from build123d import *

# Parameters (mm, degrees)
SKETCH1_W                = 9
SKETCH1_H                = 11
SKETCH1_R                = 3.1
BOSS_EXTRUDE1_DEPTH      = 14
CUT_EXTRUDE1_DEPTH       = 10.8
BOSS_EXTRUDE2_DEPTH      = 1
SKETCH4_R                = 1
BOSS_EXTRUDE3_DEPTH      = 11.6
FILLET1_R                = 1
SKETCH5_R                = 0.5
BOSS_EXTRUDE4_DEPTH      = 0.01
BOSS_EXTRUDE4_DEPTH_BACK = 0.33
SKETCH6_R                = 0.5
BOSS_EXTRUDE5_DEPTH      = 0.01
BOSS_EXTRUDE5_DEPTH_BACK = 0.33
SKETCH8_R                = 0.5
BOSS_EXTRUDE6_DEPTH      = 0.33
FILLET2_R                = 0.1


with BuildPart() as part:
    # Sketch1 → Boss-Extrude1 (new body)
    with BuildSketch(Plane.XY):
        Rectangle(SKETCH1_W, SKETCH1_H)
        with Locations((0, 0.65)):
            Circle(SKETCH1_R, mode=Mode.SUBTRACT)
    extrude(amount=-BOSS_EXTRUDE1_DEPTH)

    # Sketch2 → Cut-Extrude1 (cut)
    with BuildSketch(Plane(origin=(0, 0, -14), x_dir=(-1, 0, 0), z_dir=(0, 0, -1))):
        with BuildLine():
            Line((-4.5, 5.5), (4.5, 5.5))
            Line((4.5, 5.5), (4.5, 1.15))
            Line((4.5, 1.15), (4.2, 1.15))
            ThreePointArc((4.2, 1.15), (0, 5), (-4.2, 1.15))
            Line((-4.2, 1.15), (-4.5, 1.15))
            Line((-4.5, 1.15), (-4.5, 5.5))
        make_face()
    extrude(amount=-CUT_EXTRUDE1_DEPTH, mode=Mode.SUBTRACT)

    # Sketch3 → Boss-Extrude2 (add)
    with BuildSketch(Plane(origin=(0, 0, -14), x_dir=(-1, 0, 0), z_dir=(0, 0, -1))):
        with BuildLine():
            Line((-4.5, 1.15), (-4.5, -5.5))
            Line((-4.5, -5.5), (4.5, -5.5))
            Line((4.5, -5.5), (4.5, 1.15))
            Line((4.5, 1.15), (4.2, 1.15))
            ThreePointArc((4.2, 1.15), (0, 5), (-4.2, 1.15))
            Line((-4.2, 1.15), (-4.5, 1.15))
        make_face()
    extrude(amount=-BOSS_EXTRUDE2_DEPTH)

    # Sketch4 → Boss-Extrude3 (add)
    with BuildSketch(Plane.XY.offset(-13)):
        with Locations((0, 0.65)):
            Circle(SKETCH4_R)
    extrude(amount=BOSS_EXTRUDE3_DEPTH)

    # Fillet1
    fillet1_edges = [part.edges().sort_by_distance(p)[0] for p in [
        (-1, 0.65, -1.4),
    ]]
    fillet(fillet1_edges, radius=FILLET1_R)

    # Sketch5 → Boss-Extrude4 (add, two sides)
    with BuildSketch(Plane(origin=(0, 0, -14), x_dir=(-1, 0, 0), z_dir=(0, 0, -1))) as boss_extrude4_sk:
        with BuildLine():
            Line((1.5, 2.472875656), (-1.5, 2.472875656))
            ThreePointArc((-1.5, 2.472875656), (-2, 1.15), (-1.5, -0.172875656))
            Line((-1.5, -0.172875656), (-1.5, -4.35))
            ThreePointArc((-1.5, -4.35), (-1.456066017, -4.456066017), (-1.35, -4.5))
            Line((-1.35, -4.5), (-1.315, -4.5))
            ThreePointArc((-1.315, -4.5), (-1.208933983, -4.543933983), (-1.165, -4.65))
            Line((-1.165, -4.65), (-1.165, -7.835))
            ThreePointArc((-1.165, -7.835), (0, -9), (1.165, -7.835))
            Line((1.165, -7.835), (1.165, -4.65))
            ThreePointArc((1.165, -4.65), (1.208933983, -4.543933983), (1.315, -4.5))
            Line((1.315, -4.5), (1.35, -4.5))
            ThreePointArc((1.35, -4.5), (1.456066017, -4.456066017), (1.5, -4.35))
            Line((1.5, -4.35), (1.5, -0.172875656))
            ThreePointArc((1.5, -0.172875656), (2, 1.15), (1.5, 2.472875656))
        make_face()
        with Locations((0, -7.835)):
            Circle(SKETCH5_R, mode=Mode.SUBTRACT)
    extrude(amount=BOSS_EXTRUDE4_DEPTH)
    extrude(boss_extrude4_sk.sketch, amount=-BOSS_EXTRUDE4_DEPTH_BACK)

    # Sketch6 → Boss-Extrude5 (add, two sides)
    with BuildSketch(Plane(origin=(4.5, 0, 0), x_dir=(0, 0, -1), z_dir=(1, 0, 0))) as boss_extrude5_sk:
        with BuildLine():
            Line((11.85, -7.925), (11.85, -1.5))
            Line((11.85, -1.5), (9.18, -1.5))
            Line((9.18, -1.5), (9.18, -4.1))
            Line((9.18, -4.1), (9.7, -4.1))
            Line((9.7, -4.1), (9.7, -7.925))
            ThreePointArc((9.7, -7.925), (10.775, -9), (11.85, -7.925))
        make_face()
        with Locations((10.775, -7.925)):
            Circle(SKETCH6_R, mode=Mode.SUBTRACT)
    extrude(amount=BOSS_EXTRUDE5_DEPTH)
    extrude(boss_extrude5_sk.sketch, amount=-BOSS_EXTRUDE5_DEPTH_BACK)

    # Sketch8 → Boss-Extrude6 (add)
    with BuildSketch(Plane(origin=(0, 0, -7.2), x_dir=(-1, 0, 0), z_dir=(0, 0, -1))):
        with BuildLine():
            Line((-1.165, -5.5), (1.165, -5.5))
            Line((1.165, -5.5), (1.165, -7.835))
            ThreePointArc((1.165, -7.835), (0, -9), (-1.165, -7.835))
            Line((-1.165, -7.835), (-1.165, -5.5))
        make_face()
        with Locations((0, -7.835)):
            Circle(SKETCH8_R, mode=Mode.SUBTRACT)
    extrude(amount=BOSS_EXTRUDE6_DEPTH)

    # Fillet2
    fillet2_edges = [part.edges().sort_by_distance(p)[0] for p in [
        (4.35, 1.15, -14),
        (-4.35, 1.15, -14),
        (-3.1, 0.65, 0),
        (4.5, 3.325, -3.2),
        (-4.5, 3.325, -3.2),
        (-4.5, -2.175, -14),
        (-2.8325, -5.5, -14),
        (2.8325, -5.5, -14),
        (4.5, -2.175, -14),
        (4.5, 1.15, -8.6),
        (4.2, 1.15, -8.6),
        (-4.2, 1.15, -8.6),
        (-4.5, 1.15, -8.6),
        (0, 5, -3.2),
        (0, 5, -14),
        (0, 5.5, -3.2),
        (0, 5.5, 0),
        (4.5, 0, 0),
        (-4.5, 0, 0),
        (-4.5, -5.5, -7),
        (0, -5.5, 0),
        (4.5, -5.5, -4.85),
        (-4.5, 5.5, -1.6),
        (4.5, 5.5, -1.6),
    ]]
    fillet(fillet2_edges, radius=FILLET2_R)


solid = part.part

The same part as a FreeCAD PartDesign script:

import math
import FreeCAD as App
import Part
import Sketcher
from FreeCAD import Vector


def edges_at(feature, points):
    """Names of the edges that pass closest to the given points."""
    edges = feature.Shape.Edges
    near = lambda p: min(range(len(edges)), key=lambda i: edges[i].distToShape(Part.Vertex(*p))[0])
    return sorted({f"Edge{near(p) + 1}" for p in points})

doc = App.newDocument("Part")
body = doc.addObject("PartDesign::Body", "Body")

# Sketch on XY plane
sketch1 = body.newObject("Sketcher::SketchObject", "Sketch")
sketch1.AttachmentSupport = (doc.getObject("XY_Plane"), [""])
sketch1.MapMode = "FlatFace"
sketch1.addGeometry([
    Part.LineSegment(Vector(-4.5, 5.5, 0), Vector(-4.5, -5.5, 0)),  # 0
    Part.LineSegment(Vector(-4.5, -5.5, 0), Vector(4.5, -5.5, 0)),  # 1
    Part.LineSegment(Vector(4.5, -5.5, 0), Vector(4.5, 5.5, 0)),  # 2
    Part.LineSegment(Vector(4.5, 5.5, 0), Vector(-4.5, 5.5, 0)),  # 3
    Part.Circle(Vector(0, 0.7, 0), Vector(0, 0, 1), 3.1),  # 4
], False)
sketch1.addConstraint([
    Sketcher.Constraint("Coincident", 0, 2, 1, 1),
    Sketcher.Constraint("Coincident", 1, 2, 2, 1),
    Sketcher.Constraint("Coincident", 2, 2, 3, 1),
    Sketcher.Constraint("Coincident", 3, 2, 0, 1),
    Sketcher.Constraint("Vertical", 0),
    Sketcher.Constraint("Horizontal", 1),
    Sketcher.Constraint("Vertical", 2),
    Sketcher.Constraint("Horizontal", 3),
    Sketcher.Constraint("Symmetric", 0, 2, 2, 2, -1, 1),
    Sketcher.Constraint("PointOnObject", 4, 3, -2),
    Sketcher.Constraint("Diameter", 4, 6.2),
    Sketcher.Constraint("DistanceX", 1, 1, 1, 2, 9.0),
    Sketcher.Constraint("DistanceY", 0, 2, 0, 1, 11.0),
    Sketcher.Constraint("DistanceY", -1, 1, 4, 3, 0.65),
])
pad1 = body.newObject("PartDesign::Pad", "Pad")
pad1.Profile = sketch1
pad1.Length = 14
pad1.Reversed = True

# Sketch on XY plane
sketch2 = body.newObject("Sketcher::SketchObject", "Sketch001")
sketch2.AttachmentSupport = (doc.getObject("XY_Plane"), [""])
sketch2.MapMode = "FlatFace"
sketch2.AttachmentOffset = App.Placement(Vector(0, 0, -14), App.Rotation())
sketch2.addGeometry([
    Part.LineSegment(Vector(-4.5, 5.5, 0), Vector(4.5, 5.5, 0)),  # 0
    Part.LineSegment(Vector(4.5, 5.5, 0), Vector(4.5, 1.15, 0)),  # 1
    Part.LineSegment(Vector(4.5, 1.15, 0), Vector(4.2, 1.15, 0)),  # 2
    Part.ArcOfCircle(Part.Circle(Vector(0, 0.78, 0), Vector(0, 0, 1), 4.22), math.radians(5), math.radians(175)),  # 3
    Part.LineSegment(Vector(-4.2, 1.15, 0), Vector(-4.5, 1.15, 0)),  # 4
    Part.LineSegment(Vector(-4.5, 1.15, 0), Vector(-4.5, 5.5, 0)),  # 5
], False)
sketch2.addConstraint([
    Sketcher.Constraint("Coincident", 0, 2, 1, 1),
    Sketcher.Constraint("Coincident", 1, 2, 2, 1),
    Sketcher.Constraint("Coincident", 2, 2, 3, 1),
    Sketcher.Constraint("Coincident", 3, 2, 4, 1),
    Sketcher.Constraint("Coincident", 4, 2, 5, 1),
    Sketcher.Constraint("Coincident", 5, 2, 0, 1),
    Sketcher.Constraint("Horizontal", 0),
    Sketcher.Constraint("Vertical", 1),
    Sketcher.Constraint("Horizontal", 2),
    Sketcher.Constraint("Horizontal", 4),
    Sketcher.Constraint("Vertical", 5),
    Sketcher.Constraint("Symmetric", 2, 2, 3, 2, -2),
    Sketcher.Constraint("Equal", 2, 4),
    Sketcher.Constraint("DistanceX", 0, 1, 0, 2, 9.0),
    Sketcher.Constraint("DistanceX", 2, 2, 2, 1, 0.3),
    Sketcher.Constraint("DistanceY", 1, 2, 1, 1, 4.35),
    Sketcher.Constraint("DistanceY", -1, 1, 0, 2, 5.5),
    Sketcher.Constraint("Radius", 3, 4.215909),
])
pocket1 = body.newObject("PartDesign::Pocket", "Pocket")
pocket1.Profile = sketch2
pocket1.Length = 10.8
pocket1.Reversed = True

# Sketch on XY plane
sketch3 = body.newObject("Sketcher::SketchObject", "Sketch002")
sketch3.AttachmentSupport = (doc.getObject("XY_Plane"), [""])
sketch3.MapMode = "FlatFace"
sketch3.AttachmentOffset = App.Placement(Vector(0, 0, -14), App.Rotation())
sketch3.addGeometry([
    Part.LineSegment(Vector(4.5, 1.15, 0), Vector(4.5, -5.5, 0)),  # 0
    Part.LineSegment(Vector(4.5, -5.5, 0), Vector(-4.5, -5.5, 0)),  # 1
    Part.LineSegment(Vector(-4.5, -5.5, 0), Vector(-4.5, 1.15, 0)),  # 2
    Part.LineSegment(Vector(-4.5, 1.15, 0), Vector(-4.2, 1.15, 0)),  # 3
    Part.ArcOfCircle(Part.Circle(Vector(0, 0.78, 0), Vector(0, 0, 1), 4.22), math.radians(5), math.radians(175)),  # 4
    Part.LineSegment(Vector(4.2, 1.15, 0), Vector(4.5, 1.15, 0)),  # 5
], False)
sketch3.addConstraint([
    Sketcher.Constraint("Coincident", 0, 2, 1, 1),
    Sketcher.Constraint("Coincident", 1, 2, 2, 1),
    Sketcher.Constraint("Coincident", 2, 2, 3, 1),
    Sketcher.Constraint("Coincident", 3, 2, 4, 2),
    Sketcher.Constraint("Coincident", 4, 1, 5, 1),
    Sketcher.Constraint("Coincident", 5, 2, 0, 1),
    Sketcher.Constraint("Vertical", 0),
    Sketcher.Constraint("Horizontal", 1),
    Sketcher.Constraint("Vertical", 2),
    Sketcher.Constraint("Horizontal", 3),
    Sketcher.Constraint("Horizontal", 5),
    Sketcher.Constraint("Symmetric", 3, 2, 4, 1, -2),
    Sketcher.Constraint("Equal", 3, 5),
    Sketcher.Constraint("DistanceX", 1, 2, 1, 1, 9.0),
    Sketcher.Constraint("DistanceX", 3, 1, 3, 2, 0.3),
    Sketcher.Constraint("DistanceY", 0, 2, 0, 1, 6.65),
    Sketcher.Constraint("DistanceY", 0, 2, -1, 1, 5.5),
    Sketcher.Constraint("Radius", 4, 4.215909),
])
pad2 = body.newObject("PartDesign::Pad", "Pad001")
pad2.Profile = sketch3
pad2.Length = 1

# Sketch on XY plane
sketch4 = body.newObject("Sketcher::SketchObject", "Sketch003")
sketch4.AttachmentSupport = (doc.getObject("XY_Plane"), [""])
sketch4.MapMode = "FlatFace"
sketch4.AttachmentOffset = App.Placement(Vector(0, 0, -13), App.Rotation())
sketch4.addGeometry(Part.Circle(Vector(0, 0.7, 0), Vector(0, 0, 1), 1), False)
sketch4.addConstraint([
    Sketcher.Constraint("PointOnObject", 0, 3, -2),
    Sketcher.Constraint("Diameter", 0, 2.0),
    Sketcher.Constraint("DistanceY", -1, 1, 0, 3, 0.65),
])
pad3 = body.newObject("PartDesign::Pad", "Pad002")
pad3.Profile = sketch4
pad3.Length = 11.6
doc.recompute()

fillet = body.newObject("PartDesign::Fillet", "Fillet")
fillet.Base = (pad3, edges_at(pad3, [(-1, 0.65, -1.4)]))
fillet.Radius = 1

# Sketch on XY plane
sketch5 = body.newObject("Sketcher::SketchObject", "Sketch004")
sketch5.AttachmentSupport = (doc.getObject("XY_Plane"), [""])
sketch5.MapMode = "FlatFace"
sketch5.AttachmentOffset = App.Placement(Vector(0, 0, -14), App.Rotation())
sketch5.addGeometry([
    Part.LineSegment(Vector(-1.5, 2.473, 0), Vector(1.5, 2.473, 0)),  # 0
    Part.ArcOfCircle(Part.Circle(Vector(0, 1.15, 0), Vector(0, 0, 1), 2), math.radians(-41), math.radians(41)),  # 1
    Part.LineSegment(Vector(1.5, -0.173, 0), Vector(1.5, -4.35, 0)),  # 2
    Part.ArcOfCircle(Part.Circle(Vector(1.35, -4.35, 0), Vector(0, 0, 1), 0.15), math.radians(-90), math.radians(0)),  # 3
    Part.LineSegment(Vector(1.35, -4.5, 0), Vector(1.315, -4.5, 0)),  # 4
    Part.ArcOfCircle(Part.Circle(Vector(1.315, -4.65, 0), Vector(0, 0, 1), 0.15), math.radians(90), math.radians(180)),  # 5
    Part.LineSegment(Vector(1.165, -4.65, 0), Vector(1.165, -7.835, 0)),  # 6
    Part.ArcOfCircle(Part.Circle(Vector(0, -7.835, 0), Vector(0, 0, 1), 1.165), math.radians(180), math.radians(360)),  # 7
    Part.LineSegment(Vector(-1.165, -7.835, 0), Vector(-1.165, -4.65, 0)),  # 8
    Part.ArcOfCircle(Part.Circle(Vector(-1.315, -4.65, 0), Vector(0, 0, 1), 0.15), math.radians(0), math.radians(90)),  # 9
    Part.LineSegment(Vector(-1.315, -4.5, 0), Vector(-1.35, -4.5, 0)),  # 10
    Part.ArcOfCircle(Part.Circle(Vector(-1.35, -4.35, 0), Vector(0, 0, 1), 0.15), math.radians(-180), math.radians(-90)),  # 11
    Part.LineSegment(Vector(-1.5, -4.35, 0), Vector(-1.5, -0.173, 0)),  # 12
    Part.ArcOfCircle(Part.Circle(Vector(0, 1.15, 0), Vector(0, 0, 1), 2), math.radians(139), math.radians(221)),  # 13
    Part.Circle(Vector(0, -7.835, 0), Vector(0, 0, 1), 0.5),  # 14
], False)
sketch5.addConstraint([
    Sketcher.Constraint("Coincident", 0, 2, 1, 2),
    Sketcher.Constraint("Coincident", 1, 1, 2, 1),
    Sketcher.Constraint("Tangent", 2, 2, 3, 2),
    Sketcher.Constraint("Tangent", 3, 1, 4, 1),
    Sketcher.Constraint("Tangent", 4, 2, 5, 1),
    Sketcher.Constraint("Tangent", 5, 2, 6, 1),
    Sketcher.Constraint("Tangent", 6, 2, 7, 2),
    Sketcher.Constraint("Tangent", 7, 1, 8, 1),
    Sketcher.Constraint("Tangent", 8, 2, 9, 1),
    Sketcher.Constraint("Tangent", 9, 2, 10, 1),
    Sketcher.Constraint("Tangent", 10, 2, 11, 2),
    Sketcher.Constraint("Tangent", 11, 1, 12, 1),
    Sketcher.Constraint("Coincident", 12, 2, 13, 2),
    Sketcher.Constraint("Coincident", 13, 1, 0, 1),
    Sketcher.Constraint("Horizontal", 0),
    Sketcher.Constraint("Vertical", 2),
    Sketcher.Constraint("Horizontal", 4),
    Sketcher.Constraint("Vertical", 6),
    Sketcher.Constraint("Vertical", 8),
    Sketcher.Constraint("Horizontal", 10),
    Sketcher.Constraint("Vertical", 12),
    Sketcher.Constraint("Coincident", 13, 3, 1, 3),
    Sketcher.Constraint("Coincident", 14, 3, 7, 3),
    Sketcher.Constraint("Equal", 3, 5),
    Sketcher.Constraint("Equal", 5, 9),
    Sketcher.Constraint("Equal", 9, 11),
    Sketcher.Constraint("Equal", 1, 13),
    Sketcher.Constraint("Symmetric", 5, 3, 9, 3, -2),
    Sketcher.Constraint("Symmetric", 1, 1, 12, 2, -2),
    Sketcher.Constraint("Vertical", 0, 2, 1, 1),
    Sketcher.Constraint("Diameter", 14, 1.0),
    Sketcher.Constraint("Radius", 1, 2.0),
    Sketcher.Constraint("DistanceX", 0, 1, 0, 2, 3.0),
    Sketcher.Constraint("Radius", 3, 0.15),
    Sketcher.Constraint("Radius", 7, 1.165),
    Sketcher.Constraint("DistanceY", 3, 1, -1, 1, 4.5),
    Sketcher.Constraint("DistanceY", 3, 3, 1, 3, 5.5),
    Sketcher.Constraint("DistanceY", 6, 2, 6, 1, 3.185),
])
pad4 = body.newObject("PartDesign::Pad", "Pad003")
pad4.Profile = sketch5
pad4.Type = "TwoLengths"
pad4.Length = 0.01
pad4.Length2 = 0.33
pad4.Reversed = True

# Sketch on YZ plane
sketch6 = body.newObject("Sketcher::SketchObject", "Sketch005")
sketch6.AttachmentSupport = (doc.getObject("YZ_Plane"), [""])
sketch6.MapMode = "FlatFace"
sketch6.AttachmentOffset = App.Placement(Vector(0, 0, 4.5), App.Rotation())
sketch6.addGeometry([
    Part.LineSegment(Vector(-7.9, -11.8, 0), Vector(-1.5, -11.8, 0)),  # 0
    Part.LineSegment(Vector(-1.5, -11.8, 0), Vector(-1.5, -9.2, 0)),  # 1
    Part.LineSegment(Vector(-1.5, -9.2, 0), Vector(-4.1, -9.2, 0)),  # 2
    Part.LineSegment(Vector(-4.1, -9.2, 0), Vector(-4.1, -9.7, 0)),  # 3
    Part.LineSegment(Vector(-4.1, -9.7, 0), Vector(-7.9, -9.7, 0)),  # 4
    Part.ArcOfCircle(Part.Circle(Vector(-7.9, -10.8, 0), Vector(0, 0, 1), 1.1), math.radians(90), math.radians(270)),  # 5
    Part.Circle(Vector(-7.9, -10.8, 0), Vector(0, 0, 1), 0.5),  # 6
], False)
sketch6.addConstraint([
    Sketcher.Constraint("Coincident", 0, 2, 1, 1),
    Sketcher.Constraint("Coincident", 1, 2, 2, 1),
    Sketcher.Constraint("Coincident", 2, 2, 3, 1),
    Sketcher.Constraint("Coincident", 3, 2, 4, 1),
    Sketcher.Constraint("Tangent", 4, 2, 5, 1),
    Sketcher.Constraint("Tangent", 5, 2, 0, 1),
    Sketcher.Constraint("Horizontal", 0),
    Sketcher.Constraint("Vertical", 1),
    Sketcher.Constraint("Horizontal", 2),
    Sketcher.Constraint("Vertical", 3),
    Sketcher.Constraint("Horizontal", 4),
    Sketcher.Constraint("Coincident", 6, 3, 5, 3),
    Sketcher.Constraint("Diameter", 6, 1.0),
    Sketcher.Constraint("DistanceX", 2, 2, 2, 1, 2.6),
    Sketcher.Constraint("Radius", 5, 1.075),
    Sketcher.Constraint("DistanceY", 1, 1, 1, 2, 2.67),
    Sketcher.Constraint("DistanceX", 0, 2, -1, 1, 1.5),
    Sketcher.Constraint("DistanceY", 3, 2, -1, 1, 9.7),
    Sketcher.Constraint("DistanceX", 0, 1, 0, 2, 6.425),
])
pad5 = body.newObject("PartDesign::Pad", "Pad004")
pad5.Profile = sketch6
pad5.Type = "TwoLengths"
pad5.Length = 0.01
pad5.Length2 = 0.33

# Sketch on XY plane
sketch7 = body.newObject("Sketcher::SketchObject", "Sketch006")
sketch7.AttachmentSupport = (doc.getObject("XY_Plane"), [""])
sketch7.MapMode = "FlatFace"
sketch7.AttachmentOffset = App.Placement(Vector(0, 0, -7.2), App.Rotation())
sketch7.addGeometry([
    Part.LineSegment(Vector(-1.2, -5.5, 0), Vector(1.2, -5.5, 0)),  # 0
    Part.LineSegment(Vector(1.2, -5.5, 0), Vector(1.2, -7.8, 0)),  # 1
    Part.ArcOfCircle(Part.Circle(Vector(0, -7.8, 0), Vector(0, 0, 1), 1.2), math.radians(180), math.radians(360)),  # 2
    Part.LineSegment(Vector(-1.2, -7.8, 0), Vector(-1.2, -5.5, 0)),  # 3
    Part.Circle(Vector(0, -7.8, 0), Vector(0, 0, 1), 0.5),  # 4
], False)
sketch7.addConstraint([
    Sketcher.Constraint("Coincident", 0, 2, 1, 1),
    Sketcher.Constraint("Tangent", 1, 2, 2, 2),
    Sketcher.Constraint("Tangent", 2, 1, 3, 1),
    Sketcher.Constraint("Coincident", 3, 2, 0, 1),
    Sketcher.Constraint("Horizontal", 0),
    Sketcher.Constraint("Vertical", 1),
    Sketcher.Constraint("Vertical", 3),
    Sketcher.Constraint("Coincident", 4, 3, 2, 3),
    Sketcher.Constraint("PointOnObject", 2, 3, -2),
    Sketcher.Constraint("Diameter", 4, 1.0),
    Sketcher.Constraint("Radius", 2, 1.165),
    Sketcher.Constraint("DistanceY", 0, 2, -1, 1, 5.5),
    Sketcher.Constraint("DistanceY", 1, 2, 1, 1, 2.335),
])
pad6 = body.newObject("PartDesign::Pad", "Pad005")
pad6.Profile = sketch7
pad6.Length = 0.33
pad6.Reversed = True
doc.recompute()

fillet2 = body.newObject("PartDesign::Fillet", "Fillet001")
fillet2.Base = (pad6, edges_at(pad6, [
    (4.35, 1.15, -14),
    (-4.35, 1.15, -14),
    (-3.1, 0.65, 0),
    (4.5, 3.325, -3.2),
    (-4.5, 3.325, -3.2),
    (-4.5, -2.175, -14),
    (-2.833, -5.5, -14),
    (2.833, -5.5, -14),
    (4.5, -2.175, -14),
    (4.5, 1.15, -8.6),
    (4.2, 1.15, -8.6),
    (-4.2, 1.15, -8.6),
    (-4.5, 1.15, -8.6),
    (0, 5, -3.2),
    (0, 5, -14),
    (0, 5.5, -3.2),
    (0, 5.5, 0),
    (4.5, 0, 0),
    (-4.5, 0, 0),
    (-4.5, -5.5, -7),
    (0, -5.5, 0),
    (4.5, -5.5, -4.85),
    (-4.5, 5.5, -1.6),
    (4.5, 5.5, -1.6),
]))
fillet2.Radius = 0.1

doc.recompute()
